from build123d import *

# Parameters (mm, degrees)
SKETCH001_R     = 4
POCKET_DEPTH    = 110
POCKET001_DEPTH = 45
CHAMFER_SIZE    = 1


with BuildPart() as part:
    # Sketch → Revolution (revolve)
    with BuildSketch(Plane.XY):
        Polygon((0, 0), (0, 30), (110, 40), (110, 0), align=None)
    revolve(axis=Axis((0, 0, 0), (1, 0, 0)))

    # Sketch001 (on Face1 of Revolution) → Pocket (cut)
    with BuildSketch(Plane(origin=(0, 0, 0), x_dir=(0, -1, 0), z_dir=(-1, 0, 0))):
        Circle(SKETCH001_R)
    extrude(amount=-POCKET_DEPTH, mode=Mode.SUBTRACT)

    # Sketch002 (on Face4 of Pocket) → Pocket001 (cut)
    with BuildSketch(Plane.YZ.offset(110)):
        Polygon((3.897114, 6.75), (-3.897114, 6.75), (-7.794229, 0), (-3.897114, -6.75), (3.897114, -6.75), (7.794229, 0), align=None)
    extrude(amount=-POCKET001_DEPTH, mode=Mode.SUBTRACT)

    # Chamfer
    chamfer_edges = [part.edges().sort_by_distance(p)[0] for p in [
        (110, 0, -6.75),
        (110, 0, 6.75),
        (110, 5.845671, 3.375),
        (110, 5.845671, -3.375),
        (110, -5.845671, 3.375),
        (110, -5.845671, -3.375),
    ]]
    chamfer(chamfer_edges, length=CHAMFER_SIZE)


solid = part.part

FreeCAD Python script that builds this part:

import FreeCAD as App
import Part
import Sketcher
from FreeCAD import Vector
Q = App.Units.Quantity


def edges_at(feature, points):
    """Names of the edges that pass closest to the given points."""
    edges = feature.Shape.Edges
    near = lambda p: min(range(len(edges)), key=lambda i: edges[i].distToShape(Part.Vertex(*p))[0])
    return sorted({f"Edge{near(p) + 1}" for p in points})


def add_polygon(sketch, points):
    """Adds a closed chain of lines whose ends are joined by coincident constraints."""
    first, n = sketch.GeometryCount, len(points)
    for a, b in zip(points, points[1:] + points[:1]):
        sketch.addGeometry(Part.LineSegment(App.Vector(*a, 0), App.Vector(*b, 0)), False)
    for i in range(n):
        sketch.addConstraint(Sketcher.Constraint("Coincident", first + i, 2, first + (i + 1) % n, 1))

doc = App.newDocument("Part")
body = doc.addObject("PartDesign::Body", "Body")

# Sketch on XY plane
sketch1 = doc.addObject("Sketcher::SketchObject", "Sketch")
body.addObject(sketch1)
sketch1.AttachmentSupport = (doc.XY_Plane, [""])
sketch1.MapMode = "FlatFace"
add_polygon(sketch1, [(0, 30), (0, 0), (110, 0), (110, 40)])  # lines 0-3
sketch1.addConstraint([
    Sketcher.Constraint("Vertical", 0),
    Sketcher.Constraint("Horizontal", 1),
    Sketcher.Constraint("Vertical", 2),
    Sketcher.Constraint("Coincident", 0, 2, -1, 1),
    Sketcher.Constraint("DistanceX", 1, 1, 1, 2, 110.0),
    Sketcher.Constraint("DistanceY", 0, 2, 0, 1, 30.0),
    Sketcher.Constraint("DistanceY", 2, 1, 2, 2, 40.0),
])
revolution = doc.addObject("PartDesign::Revolution", "Revolution")
body.addObject(revolution)
revolution.Profile = sketch1
revolution.ReferenceAxis = (sketch1, ["H_Axis"])
revolution.Angle = 360

# Sketch on YZ plane
sketch2 = doc.addObject("Sketcher::SketchObject", "Sketch001")
body.addObject(sketch2)
sketch2.AttachmentSupport = (doc.YZ_Plane, [""])
sketch2.MapMode = "FlatFace"
sketch2.addGeometry(Part.Circle(Vector(0, 0, 0), Vector(0, 0, 1), 4), False)
sketch2.addConstraint([
    Sketcher.Constraint("Coincident", 0, 3, -1, 1),
    Sketcher.Constraint("Diameter", 0, 8.0),
])
pocket1 = doc.addObject("PartDesign::Pocket", "Pocket")
body.addObject(pocket1)
pocket1.Profile = sketch2
pocket1.Length = 110
pocket1.Reversed = True

# Sketch on YZ plane
sketch3 = doc.addObject("Sketcher::SketchObject", "Sketch002")
body.addObject(sketch3)
sketch3.AttachmentSupport = (doc.YZ_Plane, [""])
sketch3.MapMode = "FlatFace"
sketch3.AttachmentOffset = App.Placement(Vector(0, 0, 110), App.Rotation())
add_polygon(sketch3, [(3.897114, 6.75), (-3.897114, 6.75), (-7.794229, 0), (-3.897114, -6.75), (3.897114, -6.75), (7.794229, 0)])  # lines 0-5
sketch3.addConstraint([
    Sketcher.Constraint("Horizontal", 0),
    Sketcher.Constraint("Horizontal", 3),
    Sketcher.Constraint("Symmetric", 0, 2, 3, 2, -1, 1),
    Sketcher.Constraint("Symmetric", 1, 2, 4, 2, -1, 1),
    Sketcher.Constraint("PointOnObject", 1, 2, -1),
    Sketcher.Constraint("Parallel", 2, 5),
    Sketcher.Constraint("Vertical", 0, 2, 2, 2),
    Sketcher.Constraint("Angle", 1, Q("-120.000004 deg")),
    Sketcher.Constraint("DistanceY", 2, 2, 0, 2, 13.5),
    Sketcher.Constraint("DistanceX", 0, 2, 0, 1, 7.794228),
])
pocket2 = doc.addObject("PartDesign::Pocket", "Pocket001")
body.addObject(pocket2)
pocket2.Profile = sketch3
pocket2.Length = 45
doc.recompute()

chamfer = doc.addObject("PartDesign::Chamfer", "Chamfer")
body.addObject(chamfer)
chamfer.Base = (pocket2, edges_at(pocket2, [
    (110, 0, -6.75),
    (110, 0, 6.75),
    (110, 5.846, 3.375),
    (110, 5.846, -3.375),
    (110, -5.846, 3.375),
    (110, -5.846, -3.375),
]))
chamfer.Size = 1

doc.recompute()
